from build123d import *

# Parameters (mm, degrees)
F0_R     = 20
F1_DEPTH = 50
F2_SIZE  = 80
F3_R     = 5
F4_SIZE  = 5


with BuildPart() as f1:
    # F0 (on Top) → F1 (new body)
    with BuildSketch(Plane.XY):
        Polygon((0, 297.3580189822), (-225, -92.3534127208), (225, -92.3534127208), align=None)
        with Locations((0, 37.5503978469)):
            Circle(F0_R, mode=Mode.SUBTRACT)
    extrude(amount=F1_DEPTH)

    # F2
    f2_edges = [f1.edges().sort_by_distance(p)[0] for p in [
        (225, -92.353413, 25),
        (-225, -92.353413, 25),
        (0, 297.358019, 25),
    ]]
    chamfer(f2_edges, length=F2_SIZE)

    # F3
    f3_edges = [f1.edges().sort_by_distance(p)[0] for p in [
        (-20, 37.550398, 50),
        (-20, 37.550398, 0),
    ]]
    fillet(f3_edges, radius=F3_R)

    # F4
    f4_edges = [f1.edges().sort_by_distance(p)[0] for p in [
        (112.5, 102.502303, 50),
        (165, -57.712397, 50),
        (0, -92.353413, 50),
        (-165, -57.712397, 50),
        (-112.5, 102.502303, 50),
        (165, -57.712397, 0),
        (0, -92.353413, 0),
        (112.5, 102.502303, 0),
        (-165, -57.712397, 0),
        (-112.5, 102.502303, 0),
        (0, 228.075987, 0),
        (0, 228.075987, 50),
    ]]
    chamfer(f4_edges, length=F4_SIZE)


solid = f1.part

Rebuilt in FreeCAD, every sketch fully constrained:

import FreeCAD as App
import Part
import Sketcher
Q = App.Units.Quantity


def edges_at(feature, points):
    """Names of the edges that pass closest to the given points."""
    edges = feature.Shape.Edges
    near = lambda p: min(range(len(edges)), key=lambda i: edges[i].distToShape(Part.Vertex(*p))[0])
    return sorted({f"Edge{near(p) + 1}" for p in points})


def add_polygon(sketch, points):
    """Adds a closed chain of lines whose ends are joined by coincident constraints."""
    first, n = sketch.GeometryCount, len(points)
    for a, b in zip(points, points[1:] + points[:1]):
        sketch.addGeometry(Part.LineSegment(App.Vector(*a, 0), App.Vector(*b, 0)), False)
    for i in range(n):
        sketch.addConstraint(Sketcher.Constraint("Coincident", first + i, 2, first + (i + 1) % n, 1))

doc = App.newDocument("Part")
body = doc.addObject("PartDesign::Body", "Body")

# Sketch on XY plane
sketch1 = body.newObject("Sketcher::SketchObject", "Sketch")
sketch1.AttachmentSupport = (doc.getObject("XY_Plane"), [""])
sketch1.MapMode = "FlatFace"
add_polygon(sketch1, [(0, 297), (-225, -92), (225, -92)])  # lines 0-2
sketch1.addGeometry(Part.Circle(App.Vector(0, 38, 0), App.Vector(0, 0, 1), 20), False)  # 3
sketch1.addConstraint(Sketcher.Constraint("Horizontal", 1))
sketch1.addConstraint(Sketcher.Constraint("PointOnObject", 3, 3, -2))
sketch1.addConstraint(Sketcher.Constraint("PointOnObject", 2, 2, -2))
sketch1.addConstraint(Sketcher.Constraint("Equal", 0, 2))
sketch1.addConstraint(Sketcher.Constraint("Diameter", 3, Q("40 mm")))
sketch1.addConstraint(Sketcher.Constraint("DistanceX", 1, 1, 1, 2, Q("450 mm")))
sketch1.addConstraint(Sketcher.Constraint("Angle", 0, Q("-120 deg")))
sketch1.addConstraint(Sketcher.Constraint("DistanceY", -1, 1, 2, 2, Q("297.358019 mm")))
sketch1.addConstraint(Sketcher.Constraint("DistanceY", 0, 2, 3, 3, Q("129.903811 mm")))
pad1 = body.newObject("PartDesign::Pad", "Pad")
pad1.Profile = sketch1
pad1.Length = 50
doc.recompute()

chamfer = body.newObject("PartDesign::Chamfer", "Chamfer")
chamfer.Base = (pad1, edges_at(pad1, [(225, -92.353, 25), (-225, -92.353, 25), (0, 297.358, 25)]))
chamfer.Size = 80
doc.recompute()

fillet = body.newObject("PartDesign::Fillet", "Fillet")
fillet.Base = (chamfer, edges_at(chamfer, [(-20, 37.55, 50), (-20, 37.55, 0)]))
fillet.Radius = 5
doc.recompute()

chamfer2 = body.newObject("PartDesign::Chamfer", "Chamfer001")
chamfer2.Base = (fillet, edges_at(fillet, [
    (112.5, 102.502, 50),
    (165, -57.712, 50),
    (0, -92.353, 50),
    (-165, -57.712, 50),
    (-112.5, 102.502, 50),
    (165, -57.712, 0),
    (0, -92.353, 0),
    (112.5, 102.502, 0),
    (-165, -57.712, 0),
    (-112.5, 102.502, 0),
    (0, 228.076, 0),
    (0, 228.076, 50),
]))
chamfer2.Size = 5

doc.recompute()
